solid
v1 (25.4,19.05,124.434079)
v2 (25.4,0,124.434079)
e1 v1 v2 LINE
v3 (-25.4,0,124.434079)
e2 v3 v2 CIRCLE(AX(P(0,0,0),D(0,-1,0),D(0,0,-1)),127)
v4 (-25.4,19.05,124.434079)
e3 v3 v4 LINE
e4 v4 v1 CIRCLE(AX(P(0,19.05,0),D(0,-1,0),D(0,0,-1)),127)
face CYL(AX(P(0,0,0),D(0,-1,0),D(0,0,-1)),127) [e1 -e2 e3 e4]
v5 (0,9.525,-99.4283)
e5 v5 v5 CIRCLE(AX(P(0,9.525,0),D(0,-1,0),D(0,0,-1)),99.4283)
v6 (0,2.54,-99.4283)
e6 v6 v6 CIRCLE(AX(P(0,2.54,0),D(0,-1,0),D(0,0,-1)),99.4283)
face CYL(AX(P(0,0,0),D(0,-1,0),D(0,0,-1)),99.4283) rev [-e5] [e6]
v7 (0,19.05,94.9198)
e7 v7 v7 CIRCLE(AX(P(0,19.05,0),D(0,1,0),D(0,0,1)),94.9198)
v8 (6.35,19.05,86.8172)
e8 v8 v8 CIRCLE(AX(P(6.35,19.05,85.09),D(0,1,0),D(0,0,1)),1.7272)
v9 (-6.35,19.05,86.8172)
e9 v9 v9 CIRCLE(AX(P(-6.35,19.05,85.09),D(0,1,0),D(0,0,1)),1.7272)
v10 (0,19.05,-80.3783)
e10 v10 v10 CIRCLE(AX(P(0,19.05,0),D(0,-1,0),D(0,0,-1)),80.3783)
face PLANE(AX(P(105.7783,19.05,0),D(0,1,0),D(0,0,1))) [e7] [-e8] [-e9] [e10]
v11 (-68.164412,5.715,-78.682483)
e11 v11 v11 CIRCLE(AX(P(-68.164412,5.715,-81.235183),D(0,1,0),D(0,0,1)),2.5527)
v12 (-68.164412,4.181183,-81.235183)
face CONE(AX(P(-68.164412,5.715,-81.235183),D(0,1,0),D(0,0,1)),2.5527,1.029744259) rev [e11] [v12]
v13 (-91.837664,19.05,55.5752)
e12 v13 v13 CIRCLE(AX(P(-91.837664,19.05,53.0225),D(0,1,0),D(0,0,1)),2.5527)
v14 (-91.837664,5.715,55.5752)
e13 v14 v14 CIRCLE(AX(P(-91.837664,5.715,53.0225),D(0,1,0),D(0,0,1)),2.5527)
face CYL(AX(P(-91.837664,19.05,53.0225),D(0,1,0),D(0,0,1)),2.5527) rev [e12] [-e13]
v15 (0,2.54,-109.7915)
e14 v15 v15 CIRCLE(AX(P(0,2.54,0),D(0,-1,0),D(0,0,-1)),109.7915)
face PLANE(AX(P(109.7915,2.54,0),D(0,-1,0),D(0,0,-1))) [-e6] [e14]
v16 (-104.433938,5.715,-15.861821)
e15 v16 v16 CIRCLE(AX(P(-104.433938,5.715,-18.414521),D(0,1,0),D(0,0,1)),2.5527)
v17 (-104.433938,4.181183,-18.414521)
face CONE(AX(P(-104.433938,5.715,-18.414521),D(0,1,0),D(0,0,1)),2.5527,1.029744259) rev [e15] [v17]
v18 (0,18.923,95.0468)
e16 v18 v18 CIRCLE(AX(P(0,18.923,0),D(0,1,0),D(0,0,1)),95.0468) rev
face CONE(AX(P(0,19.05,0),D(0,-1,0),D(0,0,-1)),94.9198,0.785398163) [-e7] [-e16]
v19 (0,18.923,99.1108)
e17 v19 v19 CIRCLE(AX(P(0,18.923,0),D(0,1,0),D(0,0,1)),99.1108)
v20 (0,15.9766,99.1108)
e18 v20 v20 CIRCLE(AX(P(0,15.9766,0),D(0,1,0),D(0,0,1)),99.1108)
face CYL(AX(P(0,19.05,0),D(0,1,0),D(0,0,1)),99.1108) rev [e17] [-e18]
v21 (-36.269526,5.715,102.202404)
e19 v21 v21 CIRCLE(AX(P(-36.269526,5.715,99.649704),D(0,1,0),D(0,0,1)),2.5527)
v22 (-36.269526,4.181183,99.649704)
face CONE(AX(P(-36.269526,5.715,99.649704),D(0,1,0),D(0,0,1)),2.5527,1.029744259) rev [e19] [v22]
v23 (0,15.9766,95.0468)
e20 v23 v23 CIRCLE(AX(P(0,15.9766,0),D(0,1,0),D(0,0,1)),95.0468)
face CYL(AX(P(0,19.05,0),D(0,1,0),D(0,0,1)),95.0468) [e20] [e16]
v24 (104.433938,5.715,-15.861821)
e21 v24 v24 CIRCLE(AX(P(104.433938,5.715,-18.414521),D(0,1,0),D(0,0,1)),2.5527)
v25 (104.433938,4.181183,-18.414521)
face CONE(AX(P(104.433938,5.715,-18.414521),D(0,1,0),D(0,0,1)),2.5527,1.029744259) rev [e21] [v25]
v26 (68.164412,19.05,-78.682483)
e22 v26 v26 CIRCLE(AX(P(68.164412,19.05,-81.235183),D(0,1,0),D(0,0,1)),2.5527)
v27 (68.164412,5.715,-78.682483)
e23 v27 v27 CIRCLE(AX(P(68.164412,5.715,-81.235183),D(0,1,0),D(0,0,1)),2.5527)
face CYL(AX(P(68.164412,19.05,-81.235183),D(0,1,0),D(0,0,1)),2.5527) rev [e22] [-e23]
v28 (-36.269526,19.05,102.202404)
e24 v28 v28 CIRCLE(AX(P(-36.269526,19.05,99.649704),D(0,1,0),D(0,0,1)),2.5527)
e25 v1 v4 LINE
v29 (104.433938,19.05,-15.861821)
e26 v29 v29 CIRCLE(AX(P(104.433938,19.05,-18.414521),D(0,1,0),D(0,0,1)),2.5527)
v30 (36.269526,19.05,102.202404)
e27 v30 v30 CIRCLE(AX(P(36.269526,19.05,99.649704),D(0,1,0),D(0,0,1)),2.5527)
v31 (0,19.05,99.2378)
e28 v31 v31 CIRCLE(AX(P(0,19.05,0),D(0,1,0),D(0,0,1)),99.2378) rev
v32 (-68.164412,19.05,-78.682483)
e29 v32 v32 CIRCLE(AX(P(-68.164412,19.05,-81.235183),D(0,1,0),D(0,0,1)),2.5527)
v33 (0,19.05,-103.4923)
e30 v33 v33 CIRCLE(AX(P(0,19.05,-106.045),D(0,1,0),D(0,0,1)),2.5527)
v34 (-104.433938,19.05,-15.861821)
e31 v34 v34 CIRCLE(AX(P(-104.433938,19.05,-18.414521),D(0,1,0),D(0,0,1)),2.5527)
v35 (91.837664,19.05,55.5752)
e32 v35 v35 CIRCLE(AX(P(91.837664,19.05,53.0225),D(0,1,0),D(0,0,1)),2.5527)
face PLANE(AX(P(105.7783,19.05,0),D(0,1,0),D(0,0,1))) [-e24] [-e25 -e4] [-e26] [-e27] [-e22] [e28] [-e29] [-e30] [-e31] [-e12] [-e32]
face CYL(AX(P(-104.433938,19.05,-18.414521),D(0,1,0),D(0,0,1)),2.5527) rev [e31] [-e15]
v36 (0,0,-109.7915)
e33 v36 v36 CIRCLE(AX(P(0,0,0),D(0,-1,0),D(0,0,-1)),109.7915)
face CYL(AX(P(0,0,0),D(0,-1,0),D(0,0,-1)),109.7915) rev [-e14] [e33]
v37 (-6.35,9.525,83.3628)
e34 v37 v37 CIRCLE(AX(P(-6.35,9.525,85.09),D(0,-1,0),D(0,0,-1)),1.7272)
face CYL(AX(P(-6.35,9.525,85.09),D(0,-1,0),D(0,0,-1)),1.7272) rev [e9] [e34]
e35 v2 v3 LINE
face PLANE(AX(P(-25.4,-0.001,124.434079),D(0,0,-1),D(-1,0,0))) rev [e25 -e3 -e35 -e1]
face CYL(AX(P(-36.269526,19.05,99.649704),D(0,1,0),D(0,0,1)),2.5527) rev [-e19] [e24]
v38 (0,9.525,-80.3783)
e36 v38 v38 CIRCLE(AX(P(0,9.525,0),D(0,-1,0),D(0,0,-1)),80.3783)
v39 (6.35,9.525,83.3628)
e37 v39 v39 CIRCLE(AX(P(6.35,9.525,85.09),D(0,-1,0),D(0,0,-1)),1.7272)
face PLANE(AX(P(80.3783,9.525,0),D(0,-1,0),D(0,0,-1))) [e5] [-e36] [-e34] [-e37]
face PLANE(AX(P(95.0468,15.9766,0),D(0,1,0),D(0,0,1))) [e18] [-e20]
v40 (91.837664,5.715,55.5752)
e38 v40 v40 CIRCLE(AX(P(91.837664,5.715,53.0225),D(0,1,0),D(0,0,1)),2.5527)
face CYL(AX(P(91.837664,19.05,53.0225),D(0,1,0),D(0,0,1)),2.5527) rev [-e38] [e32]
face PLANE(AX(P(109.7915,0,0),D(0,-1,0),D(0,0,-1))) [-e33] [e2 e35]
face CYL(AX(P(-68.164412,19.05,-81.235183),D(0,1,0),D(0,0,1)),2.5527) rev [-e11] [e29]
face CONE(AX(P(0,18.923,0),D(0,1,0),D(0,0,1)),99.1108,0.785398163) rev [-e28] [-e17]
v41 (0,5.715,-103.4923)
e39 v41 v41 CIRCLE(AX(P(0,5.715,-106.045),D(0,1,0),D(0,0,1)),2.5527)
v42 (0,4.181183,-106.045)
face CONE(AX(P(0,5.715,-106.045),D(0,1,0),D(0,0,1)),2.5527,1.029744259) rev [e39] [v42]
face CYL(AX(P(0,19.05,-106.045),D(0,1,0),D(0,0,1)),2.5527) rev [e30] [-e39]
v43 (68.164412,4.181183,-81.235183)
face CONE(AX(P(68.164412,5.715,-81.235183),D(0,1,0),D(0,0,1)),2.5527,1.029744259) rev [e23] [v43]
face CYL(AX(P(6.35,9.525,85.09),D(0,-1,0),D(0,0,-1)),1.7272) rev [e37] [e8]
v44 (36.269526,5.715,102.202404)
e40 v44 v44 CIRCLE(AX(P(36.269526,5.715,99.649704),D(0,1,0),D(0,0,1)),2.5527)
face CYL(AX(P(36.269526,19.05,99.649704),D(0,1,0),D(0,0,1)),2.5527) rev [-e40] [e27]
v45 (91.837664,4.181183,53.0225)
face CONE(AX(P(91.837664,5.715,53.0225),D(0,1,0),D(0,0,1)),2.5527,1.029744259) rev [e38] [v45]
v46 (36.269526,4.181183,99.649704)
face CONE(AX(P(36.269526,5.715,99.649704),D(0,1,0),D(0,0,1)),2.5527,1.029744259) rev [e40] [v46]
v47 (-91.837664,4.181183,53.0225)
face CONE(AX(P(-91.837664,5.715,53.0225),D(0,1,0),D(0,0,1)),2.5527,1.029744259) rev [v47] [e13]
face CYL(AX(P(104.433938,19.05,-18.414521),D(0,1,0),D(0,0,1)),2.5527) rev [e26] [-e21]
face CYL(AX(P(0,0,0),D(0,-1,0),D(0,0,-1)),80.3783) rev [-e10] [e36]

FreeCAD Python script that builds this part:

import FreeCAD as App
import Part
import Sketcher
from FreeCAD import Vector
Q = App.Units.Quantity


def edges_at(feature, points):
    """Names of the edges that pass closest to the given points."""
    edges = feature.Shape.Edges
    near = lambda p: min(range(len(edges)), key=lambda i: edges[i].distToShape(Part.Vertex(*p))[0])
    return sorted({f"Edge{near(p) + 1}" for p in points})


def add_polygon(sketch, points):
    """Adds a closed chain of lines whose ends are joined by coincident constraints."""
    first, n = sketch.GeometryCount, len(points)
    for a, b in zip(points, points[1:] + points[:1]):
        sketch.addGeometry(Part.LineSegment(App.Vector(*a, 0), App.Vector(*b, 0)), False)
    for i in range(n):
        sketch.addConstraint(Sketcher.Constraint("Coincident", first + i, 2, first + (i + 1) % n, 1))

doc = App.newDocument("Part")
params = doc.addObject("Spreadsheet::Sheet", "Params")
for row, (alias, value) in enumerate([
    ("sketch1_height", "0.1 in"),
    ("sketch1_width", "0.75 in"),
    ("sketch1_width2", "0.408 in"),
    ("sketch1_height2", "0.375 in"),
    ("revolution_angle", "360 deg"),
    ("sketch2_diameter", "0.201 in"),
    ("hole_diameter", "0.201 in"),
    ("hole_depth", "0.525 in"),
    ("sketch3_width", "0.16 in"),
    ("sketch3_height", "0.121 in"),
    ("groove_angle", "360 deg"),
    ("chamfer_size", "0.005 in"),
    ("sketch4_diameter", "0.136 in"),
    ("hole2_diameter", "0.136 in"),
    ("sketch5_width", "2 in"),
], start=1):
    params.set(f"A{row}", alias)
    params.set(f"B{row}", "=" + value)
    params.setAlias(f"B{row}", alias)

body = doc.addObject("PartDesign::Body", "Body")

# Sketch on XY plane
sketch1 = body.newObject("Sketcher::SketchObject", "Sketch")
sketch1.AttachmentSupport = (doc.getObject("XY_Plane"), [""])
sketch1.MapMode = "FlatFace"
add_polygon(sketch1, [(109.7915, 2.54), (109.7915, 0), (127, 0), (127, 19.05), (80.3783, 19.05), (80.3783, 9.525), (99.4283, 9.525), (99.4283, 2.54)])  # lines 0-7
sketch1.addConstraint(Sketcher.Constraint("Vertical", 0))
sketch1.addConstraint(Sketcher.Constraint("Horizontal", 1))
sketch1.addConstraint(Sketcher.Constraint("Vertical", 2))
sketch1.addConstraint(Sketcher.Constraint("Horizontal", 3))
sketch1.addConstraint(Sketcher.Constraint("Vertical", 4))
sketch1.addConstraint(Sketcher.Constraint("Horizontal", 5))
sketch1.addConstraint(Sketcher.Constraint("Vertical", 6))
sketch1.addConstraint(Sketcher.Constraint("Horizontal", 7))
sketch1.addConstraint(Sketcher.Constraint("PointOnObject", 0, 2, -1))
sketch1.addConstraint(Sketcher.Constraint("Equal", 5, 2))
sketch1.addConstraint(Sketcher.Constraint("DistanceY", 0, 2, 0, 1, Q("0.1 in")))
sketch1.addConstraint(Sketcher.Constraint("DistanceX", -1, 1, 1, 2, Q("5 in")))
sketch1.addConstraint(Sketcher.Constraint("DistanceX", 5, 1, 5, 2, Q("0.75 in")))
sketch1.addConstraint(Sketcher.Constraint("DistanceX", 7, 1, 7, 2, Q("0.408 in")))
sketch1.addConstraint(Sketcher.Constraint("DistanceY", 4, 2, 4, 1, Q("0.375 in")))
sketch1.addConstraint(Sketcher.Constraint("DistanceX", 1, 1, 1, 2, Q("0.6775 in")))
sketch1.setExpression("Constraints[18]", "Params.sketch1_height")
sketch1.setExpression("Constraints[20]", "Params.sketch1_width")
sketch1.setExpression("Constraints[21]", "Params.sketch1_width2")
sketch1.setExpression("Constraints[22]", "Params.sketch1_height2")
revolution = body.newObject("PartDesign::Revolution", "Revolution")
revolution.Profile = sketch1
revolution.ReferenceAxis = (sketch1, ["V_Axis"])
revolution.setExpression("Angle", "Params.revolution_angle")

# Sketch on XZ plane
sketch2 = body.newObject("Sketcher::SketchObject", "Sketch001")
sketch2.AttachmentSupport = (doc.getObject("XZ_Plane"), [""])
sketch2.MapMode = "FlatFace"
sketch2.AttachmentOffset = App.Placement(Vector(0, 0, -0.75 * 25.4), App.Rotation())
sketch2.addGeometry(Part.Circle(Vector(0, -106.045, 0), Vector(0, 0, 1), 2.5527), False)
sketch2.addGeometry(Part.Circle(Vector(68.164412, -81.235183, 0), Vector(0, 0, 1), 2.5527), False)
sketch2.addGeometry(Part.Circle(Vector(104.433938, -18.414521, 0), Vector(0, 0, 1), 2.5527), False)
sketch2.addGeometry(Part.Circle(Vector(91.837664, 53.0225, 0), Vector(0, 0, 1), 2.5527), False)
sketch2.addGeometry(Part.Circle(Vector(36.269526, 99.649704, 0), Vector(0, 0, 1), 2.5527), False)
sketch2.addGeometry(Part.Circle(Vector(-36.269526, 99.649704, 0), Vector(0, 0, 1), 2.5527), False)
sketch2.addGeometry(Part.Circle(Vector(-91.837664, 53.0225, 0), Vector(0, 0, 1), 2.5527), False)
sketch2.addGeometry(Part.Circle(Vector(-104.433938, -18.414521, 0), Vector(0, 0, 1), 2.5527), False)
sketch2.addGeometry(Part.Circle(Vector(-68.164412, -81.235183, 0), Vector(0, 0, 1), 2.5527), False)
sketch2.addConstraint(Sketcher.Constraint("Equal", 0, 1))
sketch2.addConstraint(Sketcher.Constraint("Equal", 1, 2))
sketch2.addConstraint(Sketcher.Constraint("Equal", 2, 3))
sketch2.addConstraint(Sketcher.Constraint("Equal", 3, 4))
sketch2.addConstraint(Sketcher.Constraint("Equal", 4, 5))
sketch2.addConstraint(Sketcher.Constraint("Equal", 5, 6))
sketch2.addConstraint(Sketcher.Constraint("Equal", 6, 7))
sketch2.addConstraint(Sketcher.Constraint("Equal", 7, 8))
sketch2.addConstraint(Sketcher.Constraint("Symmetric", 4, 3, 5, 3, -2))
sketch2.addConstraint(Sketcher.Constraint("Symmetric", 3, 3, 6, 3, -2))
sketch2.addConstraint(Sketcher.Constraint("Symmetric", 2, 3, 7, 3, -2))
sketch2.addConstraint(Sketcher.Constraint("Symmetric", 1, 3, 8, 3, -2))
sketch2.addConstraint(Sketcher.Constraint("PointOnObject", 0, 3, -2))
sketch2.addConstraint(Sketcher.Constraint("Diameter", 0, Q("0.201 in")))
sketch2.addConstraint(Sketcher.Constraint("DistanceY", 0, 3, -1, 1, Q("4.175 in")))
sketch2.addConstraint(Sketcher.Constraint("DistanceY", -1, 1, 3, 3, Q("2.0875 in")))
sketch2.addConstraint(Sketcher.Constraint("DistanceX", -1, 1, 2, 3, 104.433938))
sketch2.addConstraint(Sketcher.Constraint("DistanceY", 2, 3, -1, 1, 18.414521))
sketch2.addConstraint(Sketcher.Constraint("DistanceY", 1, 3, 2, 3, 62.820662))
sketch2.addConstraint(Sketcher.Constraint("DistanceX", 1, 3, 3, 3, 23.673252))
sketch2.addConstraint(Sketcher.Constraint("DistanceX", 5, 3, 3, 3, 128.10719))
sketch2.addConstraint(Sketcher.Constraint("DistanceX", 7, 3, 1, 3, 172.59835))
sketch2.addConstraint(Sketcher.Constraint("DistanceY", -1, 1, 4, 3, 99.649704))
sketch2.setExpression("Constraints[13]", "Params.sketch2_diameter")
doc.recompute()
hole = body.newObject("PartDesign::Hole", "Hole")
hole.Profile = sketch2
hole.ThreadType = "None"
hole.setExpression("Diameter", "Params.hole_diameter")
hole.DepthType = "Dimension"
hole.setExpression("Depth", "Params.hole_depth")
hole.DrillPoint = "Angled"
hole.DrillPointAngle = 118
hole.Reversed = True

# Sketch on XY plane
sketch3 = body.newObject("Sketcher::SketchObject", "Sketch002")
sketch3.AttachmentSupport = (doc.getObject("XY_Plane"), [""])
sketch3.MapMode = "FlatFace"
add_polygon(sketch3, [(95.0468, 19.05), (95.0468, 15.9766), (99.1108, 15.9766), (99.1108, 19.05)])  # lines 0-3
sketch3.addConstraint(Sketcher.Constraint("Vertical", 0))
sketch3.addConstraint(Sketcher.Constraint("Horizontal", 1))
sketch3.addConstraint(Sketcher.Constraint("Vertical", 2))
sketch3.addConstraint(Sketcher.Constraint("Horizontal", 3))
sketch3.addConstraint(Sketcher.Constraint("DistanceX", 1, 1, 1, 2, Q("0.16 in")))
sketch3.addConstraint(Sketcher.Constraint("DistanceY", 0, 2, 0, 1, Q("0.121 in")))
sketch3.addConstraint(Sketcher.Constraint("DistanceY", -1, 1, 2, 2, Q("0.75 in")))
sketch3.addConstraint(Sketcher.Constraint("DistanceX", -1, 1, 0, 2, Q("3.742 in")))
sketch3.setExpression("Constraints[8]", "Params.sketch3_width")
sketch3.setExpression("Constraints[9]", "Params.sketch3_height")
groove = body.newObject("PartDesign::Groove", "Groove")
groove.Profile = sketch3
groove.ReferenceAxis = (sketch3, ["V_Axis"])
groove.setExpression("Angle", "Params.groove_angle")
doc.recompute()

chamfer = body.newObject("PartDesign::Chamfer", "Chamfer")
chamfer.Base = (groove, edges_at(groove, [(0, 19.05, -95.047), (0, 19.05, -99.111)]))
chamfer.setExpression("Size", "Params.chamfer_size")

# Sketch on XZ plane
sketch4 = body.newObject("Sketcher::SketchObject", "Sketch003")
sketch4.AttachmentSupport = (doc.getObject("XZ_Plane"), [""])
sketch4.MapMode = "FlatFace"
sketch4.AttachmentOffset = App.Placement(Vector(0, 0, -0.375 * 25.4), App.Rotation())
sketch4.addGeometry(Part.Circle(Vector(-6.35, 85.09, 0), Vector(0, 0, 1), 1.7272), False)
sketch4.addGeometry(Part.Circle(Vector(6.35, 85.09, 0), Vector(0, 0, 1), 1.7272), False)
sketch4.addConstraint(Sketcher.Constraint("Equal", 0, 1))
sketch4.addConstraint(Sketcher.Constraint("Symmetric", 0, 3, 1, 3, -2))
sketch4.addConstraint(Sketcher.Constraint("Diameter", 0, Q("0.136 in")))
sketch4.addConstraint(Sketcher.Constraint("DistanceX", 0, 3, 1, 3, Q("0.5 in")))
sketch4.addConstraint(Sketcher.Constraint("DistanceY", -1, 1, 0, 3, Q("3.35 in")))
sketch4.setExpression("Constraints[2]", "Params.sketch4_diameter")
doc.recompute()
hole2 = body.newObject("PartDesign::Hole", "Hole001")
hole2.Profile = sketch4
hole2.ThreadType = "None"
hole2.setExpression("Diameter", "Params.hole2_diameter")
hole2.DepthType = "ThroughAll"

# Sketch on XZ plane
sketch5 = body.newObject("Sketcher::SketchObject", "Sketch004")
sketch5.AttachmentSupport = (doc.getObject("XZ_Plane"), [""])
sketch5.MapMode = "FlatFace"
sketch5.AttachmentOffset = App.Placement(Vector(0, 0, -0.75 * 25.4), App.Rotation())
add_polygon(sketch5, [(-25.4, 124.434079), (-25.4, 127), (25.4, 127), (25.4, 124.434079)])  # lines 0-3
sketch5.addConstraint(Sketcher.Constraint("Vertical", 0))
sketch5.addConstraint(Sketcher.Constraint("Horizontal", 1))
sketch5.addConstraint(Sketcher.Constraint("Vertical", 2))
sketch5.addConstraint(Sketcher.Constraint("Horizontal", 3))
sketch5.addConstraint(Sketcher.Constraint("DistanceX", 1, 1, 1, 2, Q("2 in")))
sketch5.addConstraint(Sketcher.Constraint("DistanceX", 0, 2, -1, 1, Q("1 in")))
sketch5.addConstraint(Sketcher.Constraint("DistanceY", -1, 1, 0, 2, Q("5 in")))
sketch5.addConstraint(Sketcher.Constraint("DistanceY", 0, 1, 0, 2, 2.565921))
sketch5.setExpression("Constraints[8]", "Params.sketch5_width")
pocket1 = body.newObject("PartDesign::Pocket", "Pocket")
pocket1.Profile = sketch5
pocket1.Type = "UpToFirst"
pocket1.Reversed = True

doc.recompute()
